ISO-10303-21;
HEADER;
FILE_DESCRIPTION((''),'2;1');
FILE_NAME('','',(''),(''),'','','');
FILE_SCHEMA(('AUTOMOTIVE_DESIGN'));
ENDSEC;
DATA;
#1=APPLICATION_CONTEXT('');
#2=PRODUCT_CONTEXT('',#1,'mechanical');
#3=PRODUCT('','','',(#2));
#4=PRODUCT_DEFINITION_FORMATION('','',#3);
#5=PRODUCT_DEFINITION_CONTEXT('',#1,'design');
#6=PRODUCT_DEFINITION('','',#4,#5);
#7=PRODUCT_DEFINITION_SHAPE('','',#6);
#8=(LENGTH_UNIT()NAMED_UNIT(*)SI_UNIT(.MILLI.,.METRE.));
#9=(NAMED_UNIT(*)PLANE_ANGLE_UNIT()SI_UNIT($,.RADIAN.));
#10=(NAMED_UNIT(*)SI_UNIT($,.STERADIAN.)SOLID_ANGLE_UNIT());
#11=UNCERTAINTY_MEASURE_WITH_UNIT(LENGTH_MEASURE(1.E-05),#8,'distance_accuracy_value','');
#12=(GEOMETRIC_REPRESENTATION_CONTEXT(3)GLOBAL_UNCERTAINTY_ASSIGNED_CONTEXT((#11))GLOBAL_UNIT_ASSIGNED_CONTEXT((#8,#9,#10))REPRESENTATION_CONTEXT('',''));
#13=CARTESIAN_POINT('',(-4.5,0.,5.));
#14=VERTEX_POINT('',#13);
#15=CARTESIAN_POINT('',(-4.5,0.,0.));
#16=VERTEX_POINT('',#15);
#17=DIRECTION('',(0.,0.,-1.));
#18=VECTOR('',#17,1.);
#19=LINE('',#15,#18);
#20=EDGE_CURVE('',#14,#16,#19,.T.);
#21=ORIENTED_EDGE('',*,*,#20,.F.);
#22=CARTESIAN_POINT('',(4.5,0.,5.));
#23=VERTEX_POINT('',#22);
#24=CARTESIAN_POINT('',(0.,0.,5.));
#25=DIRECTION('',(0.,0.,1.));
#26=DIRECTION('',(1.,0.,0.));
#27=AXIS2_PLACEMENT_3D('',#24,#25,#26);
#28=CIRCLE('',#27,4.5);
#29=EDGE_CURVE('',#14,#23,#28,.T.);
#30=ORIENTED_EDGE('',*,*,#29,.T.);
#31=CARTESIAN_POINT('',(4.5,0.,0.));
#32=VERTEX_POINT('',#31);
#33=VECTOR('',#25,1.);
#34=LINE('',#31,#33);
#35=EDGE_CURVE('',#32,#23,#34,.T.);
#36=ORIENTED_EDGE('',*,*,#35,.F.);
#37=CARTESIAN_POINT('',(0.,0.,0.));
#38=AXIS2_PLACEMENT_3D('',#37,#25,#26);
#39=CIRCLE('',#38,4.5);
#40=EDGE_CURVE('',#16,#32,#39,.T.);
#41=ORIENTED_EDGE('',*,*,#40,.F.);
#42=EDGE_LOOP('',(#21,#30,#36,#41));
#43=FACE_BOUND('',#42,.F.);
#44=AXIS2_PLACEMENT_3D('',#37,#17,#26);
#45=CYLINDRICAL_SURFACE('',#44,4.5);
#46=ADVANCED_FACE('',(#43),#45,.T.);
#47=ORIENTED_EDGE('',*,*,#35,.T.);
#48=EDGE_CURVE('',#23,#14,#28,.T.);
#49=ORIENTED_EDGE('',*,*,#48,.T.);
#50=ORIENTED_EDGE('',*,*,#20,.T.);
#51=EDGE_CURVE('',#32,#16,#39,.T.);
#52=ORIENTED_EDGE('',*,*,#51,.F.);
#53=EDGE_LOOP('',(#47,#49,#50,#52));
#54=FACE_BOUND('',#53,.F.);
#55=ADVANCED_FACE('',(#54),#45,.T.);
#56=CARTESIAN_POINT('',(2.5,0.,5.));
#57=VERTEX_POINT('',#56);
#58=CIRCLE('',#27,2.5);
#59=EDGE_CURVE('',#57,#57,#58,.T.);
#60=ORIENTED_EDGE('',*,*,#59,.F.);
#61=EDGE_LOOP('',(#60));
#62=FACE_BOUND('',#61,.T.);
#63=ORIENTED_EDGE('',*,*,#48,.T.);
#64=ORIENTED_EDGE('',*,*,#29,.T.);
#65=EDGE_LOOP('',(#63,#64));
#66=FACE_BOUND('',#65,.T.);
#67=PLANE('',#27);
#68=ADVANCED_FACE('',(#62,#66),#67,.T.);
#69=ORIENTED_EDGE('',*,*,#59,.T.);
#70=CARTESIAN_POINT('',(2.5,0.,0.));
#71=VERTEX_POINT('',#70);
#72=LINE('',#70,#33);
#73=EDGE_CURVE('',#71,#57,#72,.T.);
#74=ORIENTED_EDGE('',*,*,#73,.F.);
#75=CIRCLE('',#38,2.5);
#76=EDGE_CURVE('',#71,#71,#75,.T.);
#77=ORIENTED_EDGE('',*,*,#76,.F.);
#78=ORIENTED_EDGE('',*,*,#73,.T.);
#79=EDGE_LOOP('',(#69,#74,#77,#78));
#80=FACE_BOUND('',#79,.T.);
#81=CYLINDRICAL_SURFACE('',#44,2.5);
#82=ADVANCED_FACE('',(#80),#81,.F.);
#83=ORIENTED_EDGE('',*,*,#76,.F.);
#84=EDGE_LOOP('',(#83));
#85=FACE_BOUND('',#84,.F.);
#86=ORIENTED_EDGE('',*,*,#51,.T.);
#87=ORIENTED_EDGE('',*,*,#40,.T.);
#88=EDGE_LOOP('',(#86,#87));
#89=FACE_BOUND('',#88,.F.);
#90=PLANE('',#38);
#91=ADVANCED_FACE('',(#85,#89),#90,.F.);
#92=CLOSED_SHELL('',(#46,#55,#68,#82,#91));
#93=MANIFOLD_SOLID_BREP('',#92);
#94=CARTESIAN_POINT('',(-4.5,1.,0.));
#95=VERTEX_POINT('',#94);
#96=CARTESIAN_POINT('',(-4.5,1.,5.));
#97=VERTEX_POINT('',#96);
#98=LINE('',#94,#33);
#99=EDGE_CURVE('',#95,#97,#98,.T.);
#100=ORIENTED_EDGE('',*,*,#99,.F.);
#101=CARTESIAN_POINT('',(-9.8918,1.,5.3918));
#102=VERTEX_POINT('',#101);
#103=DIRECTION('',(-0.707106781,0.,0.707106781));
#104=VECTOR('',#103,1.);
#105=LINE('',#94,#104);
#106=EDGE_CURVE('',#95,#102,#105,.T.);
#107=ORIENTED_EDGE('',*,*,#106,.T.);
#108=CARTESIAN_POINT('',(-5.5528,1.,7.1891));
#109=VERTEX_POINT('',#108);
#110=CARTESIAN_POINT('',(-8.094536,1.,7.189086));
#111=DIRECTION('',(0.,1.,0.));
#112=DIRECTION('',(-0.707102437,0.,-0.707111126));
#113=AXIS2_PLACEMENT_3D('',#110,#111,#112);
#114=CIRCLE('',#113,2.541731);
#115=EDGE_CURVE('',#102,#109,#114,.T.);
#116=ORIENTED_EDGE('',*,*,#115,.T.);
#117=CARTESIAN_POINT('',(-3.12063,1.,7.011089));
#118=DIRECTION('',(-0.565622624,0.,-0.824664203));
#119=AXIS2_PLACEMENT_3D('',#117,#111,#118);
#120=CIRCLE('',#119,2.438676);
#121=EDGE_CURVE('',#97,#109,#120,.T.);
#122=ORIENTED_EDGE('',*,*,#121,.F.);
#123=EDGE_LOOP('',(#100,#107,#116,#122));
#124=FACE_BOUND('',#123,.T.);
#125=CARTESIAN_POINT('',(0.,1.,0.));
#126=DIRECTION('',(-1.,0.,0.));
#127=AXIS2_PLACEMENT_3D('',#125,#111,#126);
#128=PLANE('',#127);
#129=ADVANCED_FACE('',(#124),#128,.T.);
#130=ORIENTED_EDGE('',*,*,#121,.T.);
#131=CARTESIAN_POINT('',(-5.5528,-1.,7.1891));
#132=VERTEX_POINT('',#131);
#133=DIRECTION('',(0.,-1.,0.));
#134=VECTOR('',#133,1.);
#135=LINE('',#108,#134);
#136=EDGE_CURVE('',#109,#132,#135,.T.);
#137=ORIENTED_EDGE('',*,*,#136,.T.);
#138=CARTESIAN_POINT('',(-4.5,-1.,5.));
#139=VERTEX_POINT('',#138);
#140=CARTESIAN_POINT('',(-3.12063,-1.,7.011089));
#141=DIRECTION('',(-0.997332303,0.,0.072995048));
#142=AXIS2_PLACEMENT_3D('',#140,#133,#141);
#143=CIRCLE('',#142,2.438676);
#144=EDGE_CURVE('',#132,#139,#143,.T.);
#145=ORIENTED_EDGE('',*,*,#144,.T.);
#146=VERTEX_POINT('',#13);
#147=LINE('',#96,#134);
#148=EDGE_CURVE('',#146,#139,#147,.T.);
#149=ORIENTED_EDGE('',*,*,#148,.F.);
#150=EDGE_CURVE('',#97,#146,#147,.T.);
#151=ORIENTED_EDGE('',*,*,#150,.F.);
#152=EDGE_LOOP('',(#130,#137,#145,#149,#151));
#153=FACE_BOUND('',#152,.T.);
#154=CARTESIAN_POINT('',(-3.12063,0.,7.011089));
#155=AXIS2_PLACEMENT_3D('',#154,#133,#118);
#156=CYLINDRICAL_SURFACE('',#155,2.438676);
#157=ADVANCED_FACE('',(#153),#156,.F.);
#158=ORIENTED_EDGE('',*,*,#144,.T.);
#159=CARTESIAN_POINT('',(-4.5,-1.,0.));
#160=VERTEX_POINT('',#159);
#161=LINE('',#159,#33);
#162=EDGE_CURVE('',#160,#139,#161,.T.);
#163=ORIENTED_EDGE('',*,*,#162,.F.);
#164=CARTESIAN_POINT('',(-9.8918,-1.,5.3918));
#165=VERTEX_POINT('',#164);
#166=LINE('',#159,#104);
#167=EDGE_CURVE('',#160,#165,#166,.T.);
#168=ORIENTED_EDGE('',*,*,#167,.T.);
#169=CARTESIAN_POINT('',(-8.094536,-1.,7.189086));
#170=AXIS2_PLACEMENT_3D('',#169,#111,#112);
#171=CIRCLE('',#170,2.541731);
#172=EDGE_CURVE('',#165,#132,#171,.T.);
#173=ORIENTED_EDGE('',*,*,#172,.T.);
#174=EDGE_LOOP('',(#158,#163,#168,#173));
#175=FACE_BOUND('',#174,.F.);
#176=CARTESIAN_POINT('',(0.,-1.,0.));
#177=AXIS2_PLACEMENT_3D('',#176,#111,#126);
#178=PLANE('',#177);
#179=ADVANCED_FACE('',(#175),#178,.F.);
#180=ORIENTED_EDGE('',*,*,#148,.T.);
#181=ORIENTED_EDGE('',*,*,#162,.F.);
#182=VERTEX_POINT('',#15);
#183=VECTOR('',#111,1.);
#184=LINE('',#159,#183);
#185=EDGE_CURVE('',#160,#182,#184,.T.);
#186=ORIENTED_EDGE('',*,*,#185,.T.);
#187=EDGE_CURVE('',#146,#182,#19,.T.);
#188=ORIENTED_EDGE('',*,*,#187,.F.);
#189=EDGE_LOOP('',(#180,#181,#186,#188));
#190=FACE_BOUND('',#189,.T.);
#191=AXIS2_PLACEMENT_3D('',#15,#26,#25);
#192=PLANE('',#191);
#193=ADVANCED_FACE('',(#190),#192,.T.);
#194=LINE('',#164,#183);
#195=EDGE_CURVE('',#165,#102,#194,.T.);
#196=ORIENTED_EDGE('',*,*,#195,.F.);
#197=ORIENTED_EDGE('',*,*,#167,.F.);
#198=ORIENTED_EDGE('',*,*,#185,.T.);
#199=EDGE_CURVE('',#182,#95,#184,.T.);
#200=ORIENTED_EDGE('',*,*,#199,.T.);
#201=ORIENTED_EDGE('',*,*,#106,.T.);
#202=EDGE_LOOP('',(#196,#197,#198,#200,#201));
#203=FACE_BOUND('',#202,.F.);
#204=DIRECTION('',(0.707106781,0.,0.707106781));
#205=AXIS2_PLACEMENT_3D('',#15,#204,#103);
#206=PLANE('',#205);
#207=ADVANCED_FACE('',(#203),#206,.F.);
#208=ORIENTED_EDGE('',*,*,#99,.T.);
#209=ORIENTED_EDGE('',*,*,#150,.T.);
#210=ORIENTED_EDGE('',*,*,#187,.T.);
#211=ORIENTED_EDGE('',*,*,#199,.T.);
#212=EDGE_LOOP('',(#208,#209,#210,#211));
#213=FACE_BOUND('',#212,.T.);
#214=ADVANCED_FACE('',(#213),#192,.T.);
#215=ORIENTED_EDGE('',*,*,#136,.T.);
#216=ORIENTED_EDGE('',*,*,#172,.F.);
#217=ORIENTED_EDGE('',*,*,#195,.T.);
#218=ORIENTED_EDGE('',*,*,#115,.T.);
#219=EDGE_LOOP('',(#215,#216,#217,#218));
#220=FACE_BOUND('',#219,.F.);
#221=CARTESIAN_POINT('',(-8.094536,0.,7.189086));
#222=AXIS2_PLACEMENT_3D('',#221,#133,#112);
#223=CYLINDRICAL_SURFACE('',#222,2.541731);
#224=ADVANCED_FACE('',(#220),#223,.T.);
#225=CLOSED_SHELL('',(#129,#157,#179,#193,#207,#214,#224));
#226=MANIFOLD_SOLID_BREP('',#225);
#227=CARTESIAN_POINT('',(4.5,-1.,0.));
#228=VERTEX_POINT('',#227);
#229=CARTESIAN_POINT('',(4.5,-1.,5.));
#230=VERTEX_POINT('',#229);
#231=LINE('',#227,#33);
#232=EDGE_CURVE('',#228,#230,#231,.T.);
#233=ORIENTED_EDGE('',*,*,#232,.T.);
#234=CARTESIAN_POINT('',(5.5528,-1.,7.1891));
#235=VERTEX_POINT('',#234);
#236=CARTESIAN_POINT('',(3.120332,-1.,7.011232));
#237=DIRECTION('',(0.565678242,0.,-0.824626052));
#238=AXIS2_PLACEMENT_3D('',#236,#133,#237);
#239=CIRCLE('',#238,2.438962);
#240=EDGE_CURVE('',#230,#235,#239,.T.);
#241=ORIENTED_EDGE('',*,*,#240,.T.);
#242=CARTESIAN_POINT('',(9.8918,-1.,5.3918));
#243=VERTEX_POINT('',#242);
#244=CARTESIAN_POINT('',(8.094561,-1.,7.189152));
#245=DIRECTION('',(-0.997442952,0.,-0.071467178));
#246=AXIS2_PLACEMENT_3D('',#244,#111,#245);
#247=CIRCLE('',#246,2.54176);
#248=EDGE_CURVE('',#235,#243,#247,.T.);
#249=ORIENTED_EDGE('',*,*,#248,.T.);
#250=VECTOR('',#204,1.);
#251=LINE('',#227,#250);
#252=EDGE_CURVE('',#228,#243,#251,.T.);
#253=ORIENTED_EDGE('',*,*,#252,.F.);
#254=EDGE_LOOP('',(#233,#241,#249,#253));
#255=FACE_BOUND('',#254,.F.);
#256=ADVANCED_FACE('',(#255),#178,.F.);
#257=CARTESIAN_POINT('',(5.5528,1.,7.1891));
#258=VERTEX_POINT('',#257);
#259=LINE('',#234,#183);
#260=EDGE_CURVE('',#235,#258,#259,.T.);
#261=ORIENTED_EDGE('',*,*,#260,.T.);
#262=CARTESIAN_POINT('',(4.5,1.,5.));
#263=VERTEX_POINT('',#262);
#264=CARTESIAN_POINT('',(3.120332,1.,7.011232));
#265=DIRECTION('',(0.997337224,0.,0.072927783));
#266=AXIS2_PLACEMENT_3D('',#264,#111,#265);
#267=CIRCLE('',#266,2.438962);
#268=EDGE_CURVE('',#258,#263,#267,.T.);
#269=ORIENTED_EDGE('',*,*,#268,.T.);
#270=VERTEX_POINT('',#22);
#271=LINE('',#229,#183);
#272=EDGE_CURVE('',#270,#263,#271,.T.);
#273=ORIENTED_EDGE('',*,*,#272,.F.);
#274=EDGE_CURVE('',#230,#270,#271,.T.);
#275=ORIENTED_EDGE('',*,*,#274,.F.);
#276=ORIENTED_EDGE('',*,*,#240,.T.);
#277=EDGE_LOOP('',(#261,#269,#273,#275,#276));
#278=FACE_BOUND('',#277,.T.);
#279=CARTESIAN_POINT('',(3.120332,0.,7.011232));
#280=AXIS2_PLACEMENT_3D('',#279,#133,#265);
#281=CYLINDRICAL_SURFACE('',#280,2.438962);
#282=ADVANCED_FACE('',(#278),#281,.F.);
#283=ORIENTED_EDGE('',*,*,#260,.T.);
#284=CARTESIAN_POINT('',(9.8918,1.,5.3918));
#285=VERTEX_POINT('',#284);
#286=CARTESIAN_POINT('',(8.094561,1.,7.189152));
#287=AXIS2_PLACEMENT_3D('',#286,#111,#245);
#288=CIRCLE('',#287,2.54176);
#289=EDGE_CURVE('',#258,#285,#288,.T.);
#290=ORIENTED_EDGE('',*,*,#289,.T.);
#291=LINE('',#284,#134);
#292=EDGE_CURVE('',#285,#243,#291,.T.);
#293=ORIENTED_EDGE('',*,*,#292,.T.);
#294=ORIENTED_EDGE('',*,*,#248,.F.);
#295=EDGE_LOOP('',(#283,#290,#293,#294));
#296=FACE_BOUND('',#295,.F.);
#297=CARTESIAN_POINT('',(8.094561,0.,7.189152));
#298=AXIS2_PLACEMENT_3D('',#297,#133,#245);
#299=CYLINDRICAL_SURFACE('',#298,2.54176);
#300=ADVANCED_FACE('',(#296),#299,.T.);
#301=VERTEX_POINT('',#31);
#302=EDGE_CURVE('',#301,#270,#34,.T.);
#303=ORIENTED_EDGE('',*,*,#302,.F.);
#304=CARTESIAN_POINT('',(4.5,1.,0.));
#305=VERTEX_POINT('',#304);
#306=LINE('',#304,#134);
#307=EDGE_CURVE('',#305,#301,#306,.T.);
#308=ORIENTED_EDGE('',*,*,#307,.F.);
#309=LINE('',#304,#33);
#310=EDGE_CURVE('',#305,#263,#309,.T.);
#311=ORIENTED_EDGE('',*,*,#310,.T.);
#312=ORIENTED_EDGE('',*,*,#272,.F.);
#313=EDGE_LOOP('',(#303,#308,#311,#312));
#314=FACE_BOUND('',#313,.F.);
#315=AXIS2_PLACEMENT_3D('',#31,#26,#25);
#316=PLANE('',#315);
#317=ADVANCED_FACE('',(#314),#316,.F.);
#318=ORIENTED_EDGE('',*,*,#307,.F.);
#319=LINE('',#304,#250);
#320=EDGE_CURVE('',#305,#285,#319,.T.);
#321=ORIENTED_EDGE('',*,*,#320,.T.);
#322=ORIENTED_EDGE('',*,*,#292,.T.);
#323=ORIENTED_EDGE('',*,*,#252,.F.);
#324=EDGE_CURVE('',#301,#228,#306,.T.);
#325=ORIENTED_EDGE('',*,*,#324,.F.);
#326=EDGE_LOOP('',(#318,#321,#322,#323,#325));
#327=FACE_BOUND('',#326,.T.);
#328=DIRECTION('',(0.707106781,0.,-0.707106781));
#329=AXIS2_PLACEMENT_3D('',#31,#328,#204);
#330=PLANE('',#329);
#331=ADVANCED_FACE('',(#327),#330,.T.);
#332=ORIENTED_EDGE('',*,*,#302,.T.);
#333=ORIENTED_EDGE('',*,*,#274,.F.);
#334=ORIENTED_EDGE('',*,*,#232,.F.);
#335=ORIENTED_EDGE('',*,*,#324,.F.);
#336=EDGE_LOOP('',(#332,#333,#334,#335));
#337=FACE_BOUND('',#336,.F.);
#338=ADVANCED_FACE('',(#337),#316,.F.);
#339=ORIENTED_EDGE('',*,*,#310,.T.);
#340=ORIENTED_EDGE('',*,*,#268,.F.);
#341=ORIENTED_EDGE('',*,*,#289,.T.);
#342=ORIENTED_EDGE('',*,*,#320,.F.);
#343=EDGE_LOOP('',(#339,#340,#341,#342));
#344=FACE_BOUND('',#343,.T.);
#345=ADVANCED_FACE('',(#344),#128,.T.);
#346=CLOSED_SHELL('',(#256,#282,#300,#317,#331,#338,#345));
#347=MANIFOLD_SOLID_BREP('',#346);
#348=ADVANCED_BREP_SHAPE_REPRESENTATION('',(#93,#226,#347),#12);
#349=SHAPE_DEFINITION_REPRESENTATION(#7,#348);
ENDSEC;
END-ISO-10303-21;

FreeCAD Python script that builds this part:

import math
import FreeCAD as App
import Part
import Sketcher
from FreeCAD import Vector

doc = App.newDocument("Part")
body = doc.addObject("PartDesign::Body", "Body")
body.AllowCompound = True

# Sketch on XY plane
sketch1 = body.newObject("Sketcher::SketchObject", "Sketch")
sketch1.AttachmentSupport = (doc.getObject("XY_Plane"), [""])
sketch1.MapMode = "FlatFace"
sketch1.addGeometry([
    Part.Circle(Vector(0, 0, 0), Vector(0, 0, 1), 4.5),
    Part.Circle(Vector(0, 0, 0), Vector(0, 0, 1), 2.5),
], False)
sketch1.addConstraint([
    Sketcher.Constraint("Coincident", 0, 3, -1, 1),
    Sketcher.Constraint("Coincident", 1, 3, -1, 1),
    Sketcher.Constraint("Diameter", 0, 9.0),
    Sketcher.Constraint("Diameter", 1, 5.0),
])
pad1 = body.newObject("PartDesign::Pad", "Pad")
pad1.Profile = sketch1
pad1.Length = 5

# Sketch on XZ plane
sketch2 = body.newObject("Sketcher::SketchObject", "Sketch001")
sketch2.AttachmentSupport = (doc.getObject("XZ_Plane"), [""])
sketch2.MapMode = "FlatFace"
sketch2.addGeometry([
    Part.LineSegment(Vector(4.5, 0, 0), Vector(4.5, 5, 0)),  # 0
    Part.ArcOfCircle(Part.Circle(Vector(3.1, 7, 0), Vector(0, 0, 1), 2.4), math.radians(-56), math.radians(4)),  # 1
    Part.ArcOfCircle(Part.Circle(Vector(8.1, 7.2, 0), Vector(0, 0, 1), 2.5), math.radians(-45), math.radians(180)),  # 2
    Part.LineSegment(Vector(9.9, 5.4, 0), Vector(4.5, 0, 0)),  # 3
    Part.LineSegment(Vector(-4.5, 5, 0), Vector(-4.5, 0, 0)),  # 4
    Part.LineSegment(Vector(-4.5, 0, 0), Vector(-9.9, 5.4, 0)),  # 5
    Part.ArcOfCircle(Part.Circle(Vector(-8.1, 7.2, 0), Vector(0, 0, 1), 2.5), math.radians(0), math.radians(225)),  # 6
    Part.ArcOfCircle(Part.Circle(Vector(-3.1, 7, 0), Vector(0, 0, 1), 2.4), math.radians(176), math.radians(236)),  # 7
], False)
sketch2.addConstraint([
    Sketcher.Constraint("Coincident", 0, 2, 1, 1),
    Sketcher.Constraint("Coincident", 1, 2, 2, 2),
    Sketcher.Constraint("Tangent", 2, 1, 3, 1),
    Sketcher.Constraint("Coincident", 3, 2, 0, 1),
    Sketcher.Constraint("Coincident", 4, 2, 5, 1),
    Sketcher.Constraint("Tangent", 5, 2, 6, 2),
    Sketcher.Constraint("Coincident", 6, 1, 7, 1),
    Sketcher.Constraint("Coincident", 7, 2, 4, 1),
    Sketcher.Constraint("Vertical", 0),
    Sketcher.Constraint("Vertical", 4),
    Sketcher.Constraint("Equal", 2, 6),
    Sketcher.Constraint("Equal", 1, 7),
    Sketcher.Constraint("Symmetric", 3, 2, 4, 2, -1, 1),
    Sketcher.Constraint("Symmetric", 2, 3, 6, 3, -2),
    Sketcher.Constraint("Symmetric", 1, 3, 7, 3, -2),
    Sketcher.Constraint("PointOnObject", 3, 2, -1),
    Sketcher.Constraint("Perpendicular", 3, 5),
    Sketcher.Constraint("Horizontal", 6, 3, 1, 2),
    Sketcher.Constraint("DistanceY", 0, 1, 0, 2, 5.0),
    Sketcher.Constraint("DistanceX", 4, 2, 3, 2, 9.0),
    Sketcher.Constraint("Radius", 1, 2.4388),
    Sketcher.Constraint("Radius", 2, 2.5418),
    Sketcher.Constraint("DistanceY", -1, 1, 2, 3, 7.189),
])
pad2 = body.newObject("PartDesign::Pad", "Pad001")
pad2.Profile = sketch2
pad2.Length = 2
pad2.Midplane = True

doc.recompute()
